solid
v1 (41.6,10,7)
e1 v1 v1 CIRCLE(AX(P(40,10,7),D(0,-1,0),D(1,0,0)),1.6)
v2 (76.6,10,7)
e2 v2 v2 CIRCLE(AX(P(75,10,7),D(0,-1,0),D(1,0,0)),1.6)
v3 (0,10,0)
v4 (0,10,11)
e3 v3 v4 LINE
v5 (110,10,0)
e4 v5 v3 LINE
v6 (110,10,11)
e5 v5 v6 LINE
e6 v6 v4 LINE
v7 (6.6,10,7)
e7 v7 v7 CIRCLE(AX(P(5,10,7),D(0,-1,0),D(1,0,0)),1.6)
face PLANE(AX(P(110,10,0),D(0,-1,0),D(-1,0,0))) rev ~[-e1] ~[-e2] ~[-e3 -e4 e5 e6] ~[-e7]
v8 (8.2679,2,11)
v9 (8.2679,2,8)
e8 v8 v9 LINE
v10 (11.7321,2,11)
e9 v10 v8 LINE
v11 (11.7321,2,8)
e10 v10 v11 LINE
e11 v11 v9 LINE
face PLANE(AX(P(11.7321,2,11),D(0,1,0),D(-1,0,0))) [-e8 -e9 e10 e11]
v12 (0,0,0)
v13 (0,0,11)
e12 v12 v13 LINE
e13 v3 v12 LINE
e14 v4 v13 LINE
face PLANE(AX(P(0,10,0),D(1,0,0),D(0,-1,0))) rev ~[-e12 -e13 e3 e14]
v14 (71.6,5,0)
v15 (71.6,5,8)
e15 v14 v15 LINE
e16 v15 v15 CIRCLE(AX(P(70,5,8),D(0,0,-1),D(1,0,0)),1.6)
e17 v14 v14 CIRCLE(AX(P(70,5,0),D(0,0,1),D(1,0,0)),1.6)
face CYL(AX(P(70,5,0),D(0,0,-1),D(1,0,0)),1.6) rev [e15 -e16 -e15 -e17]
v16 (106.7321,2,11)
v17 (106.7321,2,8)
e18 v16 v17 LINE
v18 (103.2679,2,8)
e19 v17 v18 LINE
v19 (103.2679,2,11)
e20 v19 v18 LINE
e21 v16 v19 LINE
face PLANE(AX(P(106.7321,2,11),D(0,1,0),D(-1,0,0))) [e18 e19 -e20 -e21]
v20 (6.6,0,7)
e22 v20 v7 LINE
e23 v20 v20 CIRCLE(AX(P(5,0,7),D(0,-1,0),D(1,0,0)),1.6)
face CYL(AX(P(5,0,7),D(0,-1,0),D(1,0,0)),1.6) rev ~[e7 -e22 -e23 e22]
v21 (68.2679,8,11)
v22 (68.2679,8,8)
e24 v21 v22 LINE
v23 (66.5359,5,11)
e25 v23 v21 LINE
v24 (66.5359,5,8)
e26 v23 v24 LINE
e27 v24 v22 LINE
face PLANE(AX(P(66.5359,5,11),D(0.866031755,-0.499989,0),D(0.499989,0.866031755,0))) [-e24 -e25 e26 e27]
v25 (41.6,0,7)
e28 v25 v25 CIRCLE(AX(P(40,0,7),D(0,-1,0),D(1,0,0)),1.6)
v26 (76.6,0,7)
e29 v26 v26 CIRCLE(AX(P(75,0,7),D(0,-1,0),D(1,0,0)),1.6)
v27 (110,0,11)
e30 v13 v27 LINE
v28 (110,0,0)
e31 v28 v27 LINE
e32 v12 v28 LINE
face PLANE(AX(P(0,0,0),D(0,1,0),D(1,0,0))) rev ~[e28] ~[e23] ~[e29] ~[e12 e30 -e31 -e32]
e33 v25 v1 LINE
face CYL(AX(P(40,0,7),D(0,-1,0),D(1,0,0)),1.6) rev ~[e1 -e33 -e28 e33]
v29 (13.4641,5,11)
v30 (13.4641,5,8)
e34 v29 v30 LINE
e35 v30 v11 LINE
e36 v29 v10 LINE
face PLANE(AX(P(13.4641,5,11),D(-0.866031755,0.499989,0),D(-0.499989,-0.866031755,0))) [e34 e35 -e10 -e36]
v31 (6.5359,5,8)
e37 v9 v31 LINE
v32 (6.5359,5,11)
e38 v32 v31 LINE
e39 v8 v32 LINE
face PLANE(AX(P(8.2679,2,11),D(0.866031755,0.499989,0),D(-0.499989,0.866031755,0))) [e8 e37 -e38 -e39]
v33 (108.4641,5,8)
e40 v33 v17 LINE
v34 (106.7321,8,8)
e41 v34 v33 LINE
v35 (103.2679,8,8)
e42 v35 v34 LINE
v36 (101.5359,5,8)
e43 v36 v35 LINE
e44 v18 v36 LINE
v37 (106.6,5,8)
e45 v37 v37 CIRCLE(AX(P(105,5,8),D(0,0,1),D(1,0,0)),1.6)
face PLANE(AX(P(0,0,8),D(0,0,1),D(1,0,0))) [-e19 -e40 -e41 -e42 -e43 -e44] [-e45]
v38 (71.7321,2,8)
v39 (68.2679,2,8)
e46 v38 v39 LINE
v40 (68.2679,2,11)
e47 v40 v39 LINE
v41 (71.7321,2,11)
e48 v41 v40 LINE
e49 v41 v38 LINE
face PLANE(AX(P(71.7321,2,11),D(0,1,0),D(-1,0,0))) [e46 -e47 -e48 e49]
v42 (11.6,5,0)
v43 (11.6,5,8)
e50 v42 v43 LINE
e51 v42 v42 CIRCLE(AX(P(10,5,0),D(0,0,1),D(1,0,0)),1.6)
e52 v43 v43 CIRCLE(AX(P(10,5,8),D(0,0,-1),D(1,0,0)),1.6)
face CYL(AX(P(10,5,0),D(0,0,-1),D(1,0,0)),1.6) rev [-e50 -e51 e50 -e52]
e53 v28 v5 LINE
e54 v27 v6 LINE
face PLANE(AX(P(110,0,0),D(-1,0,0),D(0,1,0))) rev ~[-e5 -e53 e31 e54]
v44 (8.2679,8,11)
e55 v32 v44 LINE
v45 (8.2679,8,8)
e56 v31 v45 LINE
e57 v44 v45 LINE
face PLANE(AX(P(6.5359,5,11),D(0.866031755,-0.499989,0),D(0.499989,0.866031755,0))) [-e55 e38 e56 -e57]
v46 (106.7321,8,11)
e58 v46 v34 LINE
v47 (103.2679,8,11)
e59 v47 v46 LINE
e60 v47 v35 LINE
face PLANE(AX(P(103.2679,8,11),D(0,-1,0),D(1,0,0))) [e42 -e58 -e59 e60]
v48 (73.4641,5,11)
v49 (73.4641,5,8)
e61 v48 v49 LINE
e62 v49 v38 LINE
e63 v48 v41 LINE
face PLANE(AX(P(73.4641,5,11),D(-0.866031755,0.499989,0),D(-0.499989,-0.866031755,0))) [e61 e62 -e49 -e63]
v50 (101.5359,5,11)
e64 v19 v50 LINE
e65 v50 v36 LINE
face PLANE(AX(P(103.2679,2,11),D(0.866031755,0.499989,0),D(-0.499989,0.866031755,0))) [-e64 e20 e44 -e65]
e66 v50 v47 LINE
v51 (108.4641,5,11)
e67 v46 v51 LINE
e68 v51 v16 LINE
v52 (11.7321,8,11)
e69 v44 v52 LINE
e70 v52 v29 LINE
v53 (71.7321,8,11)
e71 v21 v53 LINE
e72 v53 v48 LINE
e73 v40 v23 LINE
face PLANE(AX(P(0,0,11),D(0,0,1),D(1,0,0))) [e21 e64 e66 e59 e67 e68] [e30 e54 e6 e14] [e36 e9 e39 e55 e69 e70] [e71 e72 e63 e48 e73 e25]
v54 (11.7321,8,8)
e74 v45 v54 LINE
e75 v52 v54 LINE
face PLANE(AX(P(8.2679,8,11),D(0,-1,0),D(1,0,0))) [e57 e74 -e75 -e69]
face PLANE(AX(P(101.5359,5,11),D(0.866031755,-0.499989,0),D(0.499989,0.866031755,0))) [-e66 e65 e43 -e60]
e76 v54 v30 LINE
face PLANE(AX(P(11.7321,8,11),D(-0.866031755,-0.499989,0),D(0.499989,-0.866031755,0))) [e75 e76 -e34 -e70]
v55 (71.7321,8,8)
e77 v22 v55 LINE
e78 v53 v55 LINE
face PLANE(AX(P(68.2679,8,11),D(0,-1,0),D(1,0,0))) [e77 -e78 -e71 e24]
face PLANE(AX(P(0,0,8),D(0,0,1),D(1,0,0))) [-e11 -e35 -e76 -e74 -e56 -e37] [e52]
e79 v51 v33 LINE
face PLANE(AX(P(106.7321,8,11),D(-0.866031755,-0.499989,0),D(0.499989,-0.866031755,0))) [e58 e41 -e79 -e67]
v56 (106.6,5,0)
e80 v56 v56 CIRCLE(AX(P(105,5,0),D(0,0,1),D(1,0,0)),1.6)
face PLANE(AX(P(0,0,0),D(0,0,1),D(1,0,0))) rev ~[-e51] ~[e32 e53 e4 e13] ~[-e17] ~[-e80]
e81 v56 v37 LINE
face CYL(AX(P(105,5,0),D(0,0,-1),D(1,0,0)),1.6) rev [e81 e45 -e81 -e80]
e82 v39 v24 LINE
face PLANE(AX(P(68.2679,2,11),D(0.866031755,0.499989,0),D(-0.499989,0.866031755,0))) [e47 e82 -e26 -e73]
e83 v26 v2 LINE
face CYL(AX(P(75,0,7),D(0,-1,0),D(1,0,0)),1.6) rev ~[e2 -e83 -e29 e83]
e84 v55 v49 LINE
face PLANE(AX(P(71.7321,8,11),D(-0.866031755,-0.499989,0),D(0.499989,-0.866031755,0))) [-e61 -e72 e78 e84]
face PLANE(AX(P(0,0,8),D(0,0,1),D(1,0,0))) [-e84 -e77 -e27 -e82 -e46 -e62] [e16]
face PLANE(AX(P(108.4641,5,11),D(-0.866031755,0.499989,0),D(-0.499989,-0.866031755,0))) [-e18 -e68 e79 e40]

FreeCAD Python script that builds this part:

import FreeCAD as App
import Part
import Sketcher
Q = App.Units.Quantity


def add_polygon(sketch, points):
    """Adds a closed chain of lines whose ends are joined by coincident constraints."""
    first, n = sketch.GeometryCount, len(points)
    for a, b in zip(points, points[1:] + points[:1]):
        sketch.addGeometry(Part.LineSegment(App.Vector(*a, 0), App.Vector(*b, 0)), False)
    for i in range(n):
        sketch.addConstraint(Sketcher.Constraint("Coincident", first + i, 2, first + (i + 1) % n, 1))

doc = App.newDocument("Part")
params = doc.addObject("Spreadsheet::Sheet", "Params")
for row, (alias, value) in enumerate([
    ("sketch1_diameter", "3.2 mm"),
    ("sketch1_width", "110 mm"),
    ("sketch1_height", "10 mm"),
    ("pad1_length", "11 mm"),
    ("sketch2_diameter", "3.2 mm"),
    ("pocket1_length", "10 mm"),
    ("sketch3_diameter", "3.2 mm"),
    ("pocket2_length", "3 mm"),
], start=1):
    params.set(f"A{row}", alias)
    params.set(f"B{row}", "=" + value)
    params.setAlias(f"B{row}", alias)

body = doc.addObject("PartDesign::Body", "Body")

# Sketch on XY plane
sketch1 = body.newObject("Sketcher::SketchObject", "Sketch")
sketch1.AttachmentSupport = (doc.getObject("XY_Plane"), [""])
sketch1.MapMode = "FlatFace"
add_polygon(sketch1, [(0, 10), (0, 0), (110, 0), (110, 10)])  # lines 0-3
sketch1.addGeometry(Part.Circle(App.Vector(10, 5, 0), App.Vector(0, 0, 1), 1.6), False)  # 4
sketch1.addGeometry(Part.Circle(App.Vector(70, 5, 0), App.Vector(0, 0, 1), 1.6), False)  # 5
sketch1.addGeometry(Part.Circle(App.Vector(105, 5, 0), App.Vector(0, 0, 1), 1.6), False)  # 6
sketch1.addConstraint([
    Sketcher.Constraint("Vertical", 0),
    Sketcher.Constraint("Horizontal", 1),
    Sketcher.Constraint("Vertical", 2),
    Sketcher.Constraint("Horizontal", 3),
    Sketcher.Constraint("Coincident", 0, 2, -1, 1),
    Sketcher.Constraint("Equal", 4, 5),
    Sketcher.Constraint("Equal", 5, 6),
    Sketcher.Constraint("Horizontal", 4, 3, 5, 3),
    Sketcher.Constraint("Horizontal", 5, 3, 6, 3),
    Sketcher.Constraint("Diameter", 4, 3.2),
    Sketcher.Constraint("DistanceX", 1, 1, 1, 2, 110.0),
    Sketcher.Constraint("DistanceY", 0, 2, 0, 1, 10.0),
    Sketcher.Constraint("DistanceX", -1, 1, 4, 3, 10.0),
    Sketcher.Constraint("DistanceX", 4, 3, 5, 3, 60.0),
    Sketcher.Constraint("DistanceX", 5, 3, 6, 3, 35.0),
    Sketcher.Constraint("DistanceY", -1, 1, 4, 3, 5.0),
])
sketch1.setExpression("Constraints[13]", "Params.sketch1_diameter")
sketch1.setExpression("Constraints[14]", "Params.sketch1_width")
sketch1.setExpression("Constraints[15]", "Params.sketch1_height")
pad1 = body.newObject("PartDesign::Pad", "Pad")
pad1.Profile = sketch1
pad1.setExpression("Length", "Params.pad1_length")

# Sketch on XZ plane
sketch2 = body.newObject("Sketcher::SketchObject", "Sketch001")
sketch2.AttachmentSupport = (doc.getObject("XZ_Plane"), [""])
sketch2.MapMode = "FlatFace"
sketch2.addGeometry([
    Part.Circle(App.Vector(5, 7, 0), App.Vector(0, 0, 1), 1.6),
    Part.Circle(App.Vector(75, 7, 0), App.Vector(0, 0, 1), 1.6),
    Part.Circle(App.Vector(40, 7, 0), App.Vector(0, 0, 1), 1.6),
], False)
sketch2.addConstraint([
    Sketcher.Constraint("Equal", 0, 1),
    Sketcher.Constraint("Equal", 1, 2),
    Sketcher.Constraint("Horizontal", 0, 3, 1, 3),
    Sketcher.Constraint("Horizontal", 1, 3, 2, 3),
    Sketcher.Constraint("Diameter", 0, 3.2),
    Sketcher.Constraint("DistanceX", -1, 1, 0, 3, 5.0),
    Sketcher.Constraint("DistanceX", 0, 3, 1, 3, 70.0),
    Sketcher.Constraint("DistanceX", 0, 3, 2, 3, 35.0),
    Sketcher.Constraint("DistanceY", -1, 1, 0, 3, 7.0),
])
sketch2.setExpression("Constraints[4]", "Params.sketch2_diameter")
pocket1 = body.newObject("PartDesign::Pocket", "Pocket")
pocket1.Profile = sketch2
pocket1.setExpression("Length", "Params.pocket1_length")

# Sketch on XY plane
sketch3 = body.newObject("Sketcher::SketchObject", "Sketch002")
sketch3.AttachmentSupport = (doc.getObject("XY_Plane"), [""])
sketch3.MapMode = "FlatFace"
sketch3.AttachmentOffset = App.Placement(App.Vector(0, 0, 11), App.Rotation())
add_polygon(sketch3, [(11.7, 2), (13.5, 5), (11.7, 8), (8.3, 8), (6.5, 5), (8.3, 2)])  # lines 0-5
add_polygon(sketch3, [(71.7, 2), (73.5, 5), (71.7, 8), (68.3, 8), (66.5, 5), (68.3, 2)])  # lines 6-11
add_polygon(sketch3, [(106.7, 2), (108.5, 5), (106.7, 8), (103.3, 8), (101.5, 5), (103.3, 2)])  # lines 12-17
sketch3.addGeometry(Part.Circle(App.Vector(105, 5, 0), App.Vector(0, 0, 1), 1.6), False)  # 18
sketch3.addConstraint([
    Sketcher.Constraint("Horizontal", 2),
    Sketcher.Constraint("Horizontal", 5),
    Sketcher.Constraint("Horizontal", 8),
    Sketcher.Constraint("Horizontal", 11),
    Sketcher.Constraint("Horizontal", 14),
    Sketcher.Constraint("Horizontal", 17),
    Sketcher.Constraint("Parallel", 0, 3),
    Sketcher.Constraint("Parallel", 1, 4),
    Sketcher.Constraint("Parallel", 3, 6),
    Sketcher.Constraint("Parallel", 4, 7),
    Sketcher.Constraint("Parallel", 6, 9),
    Sketcher.Constraint("Parallel", 7, 10),
    Sketcher.Constraint("Parallel", 9, 12),
    Sketcher.Constraint("Parallel", 10, 13),
    Sketcher.Constraint("Parallel", 12, 15),
    Sketcher.Constraint("Parallel", 13, 16),
    Sketcher.Constraint("Horizontal", 18, 3, 0, 2),
    Sketcher.Constraint("Horizontal", 0, 2, 3, 2),
    Sketcher.Constraint("Horizontal", 3, 2, 6, 2),
    Sketcher.Constraint("Horizontal", 2, 2, 7, 2),
    Sketcher.Constraint("Horizontal", 6, 2, 9, 2),
    Sketcher.Constraint("Horizontal", 5, 2, 10, 2),
    Sketcher.Constraint("Horizontal", 9, 2, 12, 2),
    Sketcher.Constraint("Horizontal", 8, 2, 13, 2),
    Sketcher.Constraint("Horizontal", 12, 2, 15, 2),
    Sketcher.Constraint("Horizontal", 11, 2, 16, 2),
    Sketcher.Constraint("Vertical", 2, 2, 4, 2),
    Sketcher.Constraint("Vertical", 1, 2, 5, 2),
    Sketcher.Constraint("Equal", 5, 8),
    Sketcher.Constraint("Equal", 11, 14),
    Sketcher.Constraint("DistanceY", 4, 2, 2, 2, 6.0),
    Sketcher.Constraint("Diameter", 18, 3.2),
    Sketcher.Constraint("Angle", 0, Q("60.0007 deg")),
    Sketcher.Constraint("DistanceX", -1, 1, 18, 3, 105.0),
    Sketcher.Constraint("DistanceY", -1, 1, 18, 3, 5.0),
    Sketcher.Constraint("DistanceX", 0, 2, 6, 2, 60.0),
    Sketcher.Constraint("DistanceX", 6, 2, 12, 2, 35.0),
    Sketcher.Constraint("DistanceX", 2, 2, 2, 1, 3.4642),
    Sketcher.Constraint("DistanceX", -1, 1, 0, 2, 13.464),
])
sketch3.setExpression("Constraints[49]", "Params.sketch3_diameter")
pocket2 = body.newObject("PartDesign::Pocket", "Pocket001")
pocket2.Profile = sketch3
pocket2.setExpression("Length", "Params.pocket2_length")

doc.recompute()
